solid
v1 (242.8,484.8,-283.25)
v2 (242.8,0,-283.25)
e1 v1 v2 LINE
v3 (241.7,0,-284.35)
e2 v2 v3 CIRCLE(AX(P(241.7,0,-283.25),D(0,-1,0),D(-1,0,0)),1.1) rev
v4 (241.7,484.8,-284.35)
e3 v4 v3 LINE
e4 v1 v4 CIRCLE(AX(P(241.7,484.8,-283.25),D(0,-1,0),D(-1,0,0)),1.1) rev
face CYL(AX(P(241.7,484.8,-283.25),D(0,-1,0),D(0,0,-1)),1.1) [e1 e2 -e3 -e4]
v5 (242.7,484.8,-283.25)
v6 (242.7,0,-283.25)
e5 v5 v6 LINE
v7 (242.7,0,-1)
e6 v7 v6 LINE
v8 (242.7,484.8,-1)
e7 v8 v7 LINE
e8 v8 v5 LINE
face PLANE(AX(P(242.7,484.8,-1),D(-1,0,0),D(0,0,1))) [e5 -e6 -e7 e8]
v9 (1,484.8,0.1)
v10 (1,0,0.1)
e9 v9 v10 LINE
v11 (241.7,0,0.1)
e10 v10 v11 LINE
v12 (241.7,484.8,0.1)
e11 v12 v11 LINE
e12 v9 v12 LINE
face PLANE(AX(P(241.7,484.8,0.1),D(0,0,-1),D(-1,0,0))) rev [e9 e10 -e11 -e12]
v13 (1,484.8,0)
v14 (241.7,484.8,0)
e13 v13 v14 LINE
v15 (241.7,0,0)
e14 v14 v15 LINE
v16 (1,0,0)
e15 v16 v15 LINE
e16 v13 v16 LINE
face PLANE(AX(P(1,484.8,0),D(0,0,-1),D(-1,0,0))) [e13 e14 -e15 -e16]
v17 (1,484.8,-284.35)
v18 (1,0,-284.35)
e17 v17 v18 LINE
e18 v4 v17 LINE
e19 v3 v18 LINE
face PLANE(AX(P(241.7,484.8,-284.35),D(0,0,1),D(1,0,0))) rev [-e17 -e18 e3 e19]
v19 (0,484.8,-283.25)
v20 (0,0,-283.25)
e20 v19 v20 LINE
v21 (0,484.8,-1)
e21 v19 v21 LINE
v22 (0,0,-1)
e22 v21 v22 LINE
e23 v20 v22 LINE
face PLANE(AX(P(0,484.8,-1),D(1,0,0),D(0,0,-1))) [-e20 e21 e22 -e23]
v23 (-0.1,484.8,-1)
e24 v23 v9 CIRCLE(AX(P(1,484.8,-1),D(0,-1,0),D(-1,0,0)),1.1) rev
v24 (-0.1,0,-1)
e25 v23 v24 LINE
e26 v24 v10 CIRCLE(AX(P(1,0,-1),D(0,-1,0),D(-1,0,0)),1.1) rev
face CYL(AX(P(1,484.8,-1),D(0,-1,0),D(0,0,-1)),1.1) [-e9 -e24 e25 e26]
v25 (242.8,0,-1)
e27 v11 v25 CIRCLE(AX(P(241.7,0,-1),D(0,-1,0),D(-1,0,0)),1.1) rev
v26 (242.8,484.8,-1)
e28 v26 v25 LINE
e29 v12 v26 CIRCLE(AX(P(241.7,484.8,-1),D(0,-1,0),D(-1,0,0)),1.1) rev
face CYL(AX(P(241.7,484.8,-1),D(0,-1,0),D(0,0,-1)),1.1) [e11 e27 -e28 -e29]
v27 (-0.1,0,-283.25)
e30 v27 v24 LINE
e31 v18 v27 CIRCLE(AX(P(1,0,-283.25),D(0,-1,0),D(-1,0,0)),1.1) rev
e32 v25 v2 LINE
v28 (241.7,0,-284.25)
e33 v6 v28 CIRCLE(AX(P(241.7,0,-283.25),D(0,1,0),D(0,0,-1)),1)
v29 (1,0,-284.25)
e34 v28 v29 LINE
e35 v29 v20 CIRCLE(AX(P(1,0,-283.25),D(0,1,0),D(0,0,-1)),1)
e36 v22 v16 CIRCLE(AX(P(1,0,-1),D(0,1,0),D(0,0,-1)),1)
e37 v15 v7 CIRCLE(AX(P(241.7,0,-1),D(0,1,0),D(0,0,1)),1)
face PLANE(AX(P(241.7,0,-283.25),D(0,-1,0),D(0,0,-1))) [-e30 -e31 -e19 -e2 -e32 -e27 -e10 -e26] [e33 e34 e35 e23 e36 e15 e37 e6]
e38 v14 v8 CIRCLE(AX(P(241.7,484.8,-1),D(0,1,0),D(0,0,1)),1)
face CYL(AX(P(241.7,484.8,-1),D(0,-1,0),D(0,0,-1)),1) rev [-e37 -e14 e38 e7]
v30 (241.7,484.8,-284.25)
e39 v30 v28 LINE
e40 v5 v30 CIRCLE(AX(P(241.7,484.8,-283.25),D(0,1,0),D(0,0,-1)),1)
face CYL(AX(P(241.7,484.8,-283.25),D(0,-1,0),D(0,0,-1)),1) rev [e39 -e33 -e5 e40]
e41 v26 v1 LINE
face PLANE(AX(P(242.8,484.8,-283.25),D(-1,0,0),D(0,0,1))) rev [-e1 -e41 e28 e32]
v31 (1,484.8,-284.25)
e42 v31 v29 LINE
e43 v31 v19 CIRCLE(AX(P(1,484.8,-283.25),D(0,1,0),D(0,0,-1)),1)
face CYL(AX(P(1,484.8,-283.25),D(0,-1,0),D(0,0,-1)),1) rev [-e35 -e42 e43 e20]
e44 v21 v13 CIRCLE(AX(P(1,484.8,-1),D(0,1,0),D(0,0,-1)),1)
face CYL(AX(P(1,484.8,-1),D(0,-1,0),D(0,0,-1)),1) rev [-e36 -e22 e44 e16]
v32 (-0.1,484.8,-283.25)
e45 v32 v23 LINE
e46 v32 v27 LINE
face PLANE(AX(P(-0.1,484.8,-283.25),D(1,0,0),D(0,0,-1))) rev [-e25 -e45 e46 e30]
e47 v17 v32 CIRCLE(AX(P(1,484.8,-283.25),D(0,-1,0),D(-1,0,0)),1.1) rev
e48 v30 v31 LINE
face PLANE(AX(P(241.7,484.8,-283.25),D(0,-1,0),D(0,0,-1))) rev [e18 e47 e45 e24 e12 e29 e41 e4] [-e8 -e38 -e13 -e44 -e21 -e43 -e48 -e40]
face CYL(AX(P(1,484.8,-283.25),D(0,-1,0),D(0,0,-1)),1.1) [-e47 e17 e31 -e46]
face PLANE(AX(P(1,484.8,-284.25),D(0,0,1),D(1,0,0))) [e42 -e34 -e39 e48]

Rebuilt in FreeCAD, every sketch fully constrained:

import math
import FreeCAD as App
import Part
import Sketcher
from FreeCAD import Vector

doc = App.newDocument("Part")
params = doc.addObject("Spreadsheet::Sheet", "Params")
for row, (alias, value) in enumerate([
    ("sketch1_radius", "1 mm"),
    ("sketch1_radius2", "1.1 mm"),
    ("sketch1_width", "240.7 mm"),
    ("sketch1_height", "282.25 mm"),
    ("pad1_length", "484.8 mm"),
], start=1):
    params.set(f"A{row}", alias)
    params.set(f"B{row}", "=" + value)
    params.setAlias(f"B{row}", alias)

body = doc.addObject("PartDesign::Body", "Body")

sketch1 = body.newObject("Sketcher::SketchObject", "Sketch")
sketch1.AttachmentSupport = (doc.getObject("XZ_Plane"), [""])
sketch1.MapMode = "FlatFace"
sketch1.addGeometry([
    Part.LineSegment(Vector(-0.1, -283.25, 0), Vector(-0.1, -1, 0)),
    Part.ArcOfCircle(Part.Circle(Vector(1, -1, 0), Vector(0, 0, 1), 1.1), math.radians(90), math.radians(180)),
    Part.LineSegment(Vector(1, 0.1, 0), Vector(241.7, 0.1, 0)),
    Part.ArcOfCircle(Part.Circle(Vector(241.7, -1, 0), Vector(0, 0, 1), 1.1), math.radians(0), math.radians(90)),
    Part.LineSegment(Vector(242.8, -1, 0), Vector(242.8, -283.25, 0)),
    Part.ArcOfCircle(Part.Circle(Vector(241.7, -283.25, 0), Vector(0, 0, 1), 1.1), math.radians(-90), math.radians(0)),
    Part.LineSegment(Vector(241.7, -284.35, 0), Vector(1, -284.35, 0)),
    Part.ArcOfCircle(Part.Circle(Vector(1, -283.25, 0), Vector(0, 0, 1), 1.1), math.radians(-180), math.radians(-90)),
    Part.LineSegment(Vector(0, -1, 0), Vector(0, -283.25, 0)),
    Part.ArcOfCircle(Part.Circle(Vector(1, -283.25, 0), Vector(0, 0, 1), 1), math.radians(-180), math.radians(-90)),
    Part.LineSegment(Vector(1, -284.25, 0), Vector(241.7, -284.25, 0)),
    Part.ArcOfCircle(Part.Circle(Vector(241.7, -283.25, 0), Vector(0, 0, 1), 1), math.radians(-90), math.radians(0)),
    Part.LineSegment(Vector(242.7, -283.25, 0), Vector(242.7, -1, 0)),
    Part.ArcOfCircle(Part.Circle(Vector(241.7, -1, 0), Vector(0, 0, 1), 1), math.radians(0), math.radians(90)),
    Part.LineSegment(Vector(241.7, 0, 0), Vector(1, 0, 0)),
    Part.ArcOfCircle(Part.Circle(Vector(1, -1, 0), Vector(0, 0, 1), 1), math.radians(90), math.radians(180)),
], False)
sketch1.addConstraint([
    Sketcher.Constraint("Tangent", 0, 2, 1, 2),
    Sketcher.Constraint("Tangent", 1, 1, 2, 1),
    Sketcher.Constraint("Tangent", 2, 2, 3, 2),
    Sketcher.Constraint("Tangent", 3, 1, 4, 1),
    Sketcher.Constraint("Tangent", 4, 2, 5, 2),
    Sketcher.Constraint("Tangent", 5, 1, 6, 1),
    Sketcher.Constraint("Tangent", 6, 2, 7, 2),
    Sketcher.Constraint("Tangent", 7, 1, 0, 1),
    Sketcher.Constraint("Tangent", 8, 2, 9, 1),
    Sketcher.Constraint("Tangent", 9, 2, 10, 1),
    Sketcher.Constraint("Tangent", 10, 2, 11, 1),
    Sketcher.Constraint("Tangent", 11, 2, 12, 1),
    Sketcher.Constraint("Tangent", 12, 2, 13, 1),
    Sketcher.Constraint("Tangent", 13, 2, 14, 1),
    Sketcher.Constraint("Tangent", 14, 2, 15, 1),
    Sketcher.Constraint("Tangent", 15, 2, 8, 1),
    Sketcher.Constraint("Vertical", 0),
    Sketcher.Constraint("Horizontal", 2),
    Sketcher.Constraint("Vertical", 4),
    Sketcher.Constraint("Horizontal", 6),
    Sketcher.Constraint("Vertical", 8),
    Sketcher.Constraint("Horizontal", 10),
    Sketcher.Constraint("Vertical", 12),
    Sketcher.Constraint("Horizontal", 14),
    Sketcher.Constraint("Coincident", 9, 3, 7, 3),
    Sketcher.Constraint("Coincident", 11, 3, 5, 3),
    Sketcher.Constraint("Coincident", 13, 3, 3, 3),
    Sketcher.Constraint("Equal", 1, 3),
    Sketcher.Constraint("Equal", 3, 5),
    Sketcher.Constraint("Equal", 5, 7),
    Sketcher.Constraint("Equal", 13, 15),
    Sketcher.Constraint("PointOnObject", 8, 2, -2),
    Sketcher.Constraint("PointOnObject", 13, 2, -1),
    Sketcher.Constraint("Radius", 9, 1.0),
    Sketcher.Constraint("Radius", 1, 1.1),
    Sketcher.Constraint("DistanceX", 2, 1, 2, 2, 240.7),
    Sketcher.Constraint("DistanceY", 0, 1, 0, 2, 282.25),
])
sketch1.setExpression("Constraints[33]", "Params.sketch1_radius")
sketch1.setExpression("Constraints[34]", "Params.sketch1_radius2")
sketch1.setExpression("Constraints[35]", "Params.sketch1_width")
sketch1.setExpression("Constraints[36]", "Params.sketch1_height")
pad1 = body.newObject("PartDesign::Pad", "Pad")
pad1.Profile = sketch1
pad1.setExpression("Length", "Params.pad1_length")
pad1.Reversed = True

doc.recompute()
